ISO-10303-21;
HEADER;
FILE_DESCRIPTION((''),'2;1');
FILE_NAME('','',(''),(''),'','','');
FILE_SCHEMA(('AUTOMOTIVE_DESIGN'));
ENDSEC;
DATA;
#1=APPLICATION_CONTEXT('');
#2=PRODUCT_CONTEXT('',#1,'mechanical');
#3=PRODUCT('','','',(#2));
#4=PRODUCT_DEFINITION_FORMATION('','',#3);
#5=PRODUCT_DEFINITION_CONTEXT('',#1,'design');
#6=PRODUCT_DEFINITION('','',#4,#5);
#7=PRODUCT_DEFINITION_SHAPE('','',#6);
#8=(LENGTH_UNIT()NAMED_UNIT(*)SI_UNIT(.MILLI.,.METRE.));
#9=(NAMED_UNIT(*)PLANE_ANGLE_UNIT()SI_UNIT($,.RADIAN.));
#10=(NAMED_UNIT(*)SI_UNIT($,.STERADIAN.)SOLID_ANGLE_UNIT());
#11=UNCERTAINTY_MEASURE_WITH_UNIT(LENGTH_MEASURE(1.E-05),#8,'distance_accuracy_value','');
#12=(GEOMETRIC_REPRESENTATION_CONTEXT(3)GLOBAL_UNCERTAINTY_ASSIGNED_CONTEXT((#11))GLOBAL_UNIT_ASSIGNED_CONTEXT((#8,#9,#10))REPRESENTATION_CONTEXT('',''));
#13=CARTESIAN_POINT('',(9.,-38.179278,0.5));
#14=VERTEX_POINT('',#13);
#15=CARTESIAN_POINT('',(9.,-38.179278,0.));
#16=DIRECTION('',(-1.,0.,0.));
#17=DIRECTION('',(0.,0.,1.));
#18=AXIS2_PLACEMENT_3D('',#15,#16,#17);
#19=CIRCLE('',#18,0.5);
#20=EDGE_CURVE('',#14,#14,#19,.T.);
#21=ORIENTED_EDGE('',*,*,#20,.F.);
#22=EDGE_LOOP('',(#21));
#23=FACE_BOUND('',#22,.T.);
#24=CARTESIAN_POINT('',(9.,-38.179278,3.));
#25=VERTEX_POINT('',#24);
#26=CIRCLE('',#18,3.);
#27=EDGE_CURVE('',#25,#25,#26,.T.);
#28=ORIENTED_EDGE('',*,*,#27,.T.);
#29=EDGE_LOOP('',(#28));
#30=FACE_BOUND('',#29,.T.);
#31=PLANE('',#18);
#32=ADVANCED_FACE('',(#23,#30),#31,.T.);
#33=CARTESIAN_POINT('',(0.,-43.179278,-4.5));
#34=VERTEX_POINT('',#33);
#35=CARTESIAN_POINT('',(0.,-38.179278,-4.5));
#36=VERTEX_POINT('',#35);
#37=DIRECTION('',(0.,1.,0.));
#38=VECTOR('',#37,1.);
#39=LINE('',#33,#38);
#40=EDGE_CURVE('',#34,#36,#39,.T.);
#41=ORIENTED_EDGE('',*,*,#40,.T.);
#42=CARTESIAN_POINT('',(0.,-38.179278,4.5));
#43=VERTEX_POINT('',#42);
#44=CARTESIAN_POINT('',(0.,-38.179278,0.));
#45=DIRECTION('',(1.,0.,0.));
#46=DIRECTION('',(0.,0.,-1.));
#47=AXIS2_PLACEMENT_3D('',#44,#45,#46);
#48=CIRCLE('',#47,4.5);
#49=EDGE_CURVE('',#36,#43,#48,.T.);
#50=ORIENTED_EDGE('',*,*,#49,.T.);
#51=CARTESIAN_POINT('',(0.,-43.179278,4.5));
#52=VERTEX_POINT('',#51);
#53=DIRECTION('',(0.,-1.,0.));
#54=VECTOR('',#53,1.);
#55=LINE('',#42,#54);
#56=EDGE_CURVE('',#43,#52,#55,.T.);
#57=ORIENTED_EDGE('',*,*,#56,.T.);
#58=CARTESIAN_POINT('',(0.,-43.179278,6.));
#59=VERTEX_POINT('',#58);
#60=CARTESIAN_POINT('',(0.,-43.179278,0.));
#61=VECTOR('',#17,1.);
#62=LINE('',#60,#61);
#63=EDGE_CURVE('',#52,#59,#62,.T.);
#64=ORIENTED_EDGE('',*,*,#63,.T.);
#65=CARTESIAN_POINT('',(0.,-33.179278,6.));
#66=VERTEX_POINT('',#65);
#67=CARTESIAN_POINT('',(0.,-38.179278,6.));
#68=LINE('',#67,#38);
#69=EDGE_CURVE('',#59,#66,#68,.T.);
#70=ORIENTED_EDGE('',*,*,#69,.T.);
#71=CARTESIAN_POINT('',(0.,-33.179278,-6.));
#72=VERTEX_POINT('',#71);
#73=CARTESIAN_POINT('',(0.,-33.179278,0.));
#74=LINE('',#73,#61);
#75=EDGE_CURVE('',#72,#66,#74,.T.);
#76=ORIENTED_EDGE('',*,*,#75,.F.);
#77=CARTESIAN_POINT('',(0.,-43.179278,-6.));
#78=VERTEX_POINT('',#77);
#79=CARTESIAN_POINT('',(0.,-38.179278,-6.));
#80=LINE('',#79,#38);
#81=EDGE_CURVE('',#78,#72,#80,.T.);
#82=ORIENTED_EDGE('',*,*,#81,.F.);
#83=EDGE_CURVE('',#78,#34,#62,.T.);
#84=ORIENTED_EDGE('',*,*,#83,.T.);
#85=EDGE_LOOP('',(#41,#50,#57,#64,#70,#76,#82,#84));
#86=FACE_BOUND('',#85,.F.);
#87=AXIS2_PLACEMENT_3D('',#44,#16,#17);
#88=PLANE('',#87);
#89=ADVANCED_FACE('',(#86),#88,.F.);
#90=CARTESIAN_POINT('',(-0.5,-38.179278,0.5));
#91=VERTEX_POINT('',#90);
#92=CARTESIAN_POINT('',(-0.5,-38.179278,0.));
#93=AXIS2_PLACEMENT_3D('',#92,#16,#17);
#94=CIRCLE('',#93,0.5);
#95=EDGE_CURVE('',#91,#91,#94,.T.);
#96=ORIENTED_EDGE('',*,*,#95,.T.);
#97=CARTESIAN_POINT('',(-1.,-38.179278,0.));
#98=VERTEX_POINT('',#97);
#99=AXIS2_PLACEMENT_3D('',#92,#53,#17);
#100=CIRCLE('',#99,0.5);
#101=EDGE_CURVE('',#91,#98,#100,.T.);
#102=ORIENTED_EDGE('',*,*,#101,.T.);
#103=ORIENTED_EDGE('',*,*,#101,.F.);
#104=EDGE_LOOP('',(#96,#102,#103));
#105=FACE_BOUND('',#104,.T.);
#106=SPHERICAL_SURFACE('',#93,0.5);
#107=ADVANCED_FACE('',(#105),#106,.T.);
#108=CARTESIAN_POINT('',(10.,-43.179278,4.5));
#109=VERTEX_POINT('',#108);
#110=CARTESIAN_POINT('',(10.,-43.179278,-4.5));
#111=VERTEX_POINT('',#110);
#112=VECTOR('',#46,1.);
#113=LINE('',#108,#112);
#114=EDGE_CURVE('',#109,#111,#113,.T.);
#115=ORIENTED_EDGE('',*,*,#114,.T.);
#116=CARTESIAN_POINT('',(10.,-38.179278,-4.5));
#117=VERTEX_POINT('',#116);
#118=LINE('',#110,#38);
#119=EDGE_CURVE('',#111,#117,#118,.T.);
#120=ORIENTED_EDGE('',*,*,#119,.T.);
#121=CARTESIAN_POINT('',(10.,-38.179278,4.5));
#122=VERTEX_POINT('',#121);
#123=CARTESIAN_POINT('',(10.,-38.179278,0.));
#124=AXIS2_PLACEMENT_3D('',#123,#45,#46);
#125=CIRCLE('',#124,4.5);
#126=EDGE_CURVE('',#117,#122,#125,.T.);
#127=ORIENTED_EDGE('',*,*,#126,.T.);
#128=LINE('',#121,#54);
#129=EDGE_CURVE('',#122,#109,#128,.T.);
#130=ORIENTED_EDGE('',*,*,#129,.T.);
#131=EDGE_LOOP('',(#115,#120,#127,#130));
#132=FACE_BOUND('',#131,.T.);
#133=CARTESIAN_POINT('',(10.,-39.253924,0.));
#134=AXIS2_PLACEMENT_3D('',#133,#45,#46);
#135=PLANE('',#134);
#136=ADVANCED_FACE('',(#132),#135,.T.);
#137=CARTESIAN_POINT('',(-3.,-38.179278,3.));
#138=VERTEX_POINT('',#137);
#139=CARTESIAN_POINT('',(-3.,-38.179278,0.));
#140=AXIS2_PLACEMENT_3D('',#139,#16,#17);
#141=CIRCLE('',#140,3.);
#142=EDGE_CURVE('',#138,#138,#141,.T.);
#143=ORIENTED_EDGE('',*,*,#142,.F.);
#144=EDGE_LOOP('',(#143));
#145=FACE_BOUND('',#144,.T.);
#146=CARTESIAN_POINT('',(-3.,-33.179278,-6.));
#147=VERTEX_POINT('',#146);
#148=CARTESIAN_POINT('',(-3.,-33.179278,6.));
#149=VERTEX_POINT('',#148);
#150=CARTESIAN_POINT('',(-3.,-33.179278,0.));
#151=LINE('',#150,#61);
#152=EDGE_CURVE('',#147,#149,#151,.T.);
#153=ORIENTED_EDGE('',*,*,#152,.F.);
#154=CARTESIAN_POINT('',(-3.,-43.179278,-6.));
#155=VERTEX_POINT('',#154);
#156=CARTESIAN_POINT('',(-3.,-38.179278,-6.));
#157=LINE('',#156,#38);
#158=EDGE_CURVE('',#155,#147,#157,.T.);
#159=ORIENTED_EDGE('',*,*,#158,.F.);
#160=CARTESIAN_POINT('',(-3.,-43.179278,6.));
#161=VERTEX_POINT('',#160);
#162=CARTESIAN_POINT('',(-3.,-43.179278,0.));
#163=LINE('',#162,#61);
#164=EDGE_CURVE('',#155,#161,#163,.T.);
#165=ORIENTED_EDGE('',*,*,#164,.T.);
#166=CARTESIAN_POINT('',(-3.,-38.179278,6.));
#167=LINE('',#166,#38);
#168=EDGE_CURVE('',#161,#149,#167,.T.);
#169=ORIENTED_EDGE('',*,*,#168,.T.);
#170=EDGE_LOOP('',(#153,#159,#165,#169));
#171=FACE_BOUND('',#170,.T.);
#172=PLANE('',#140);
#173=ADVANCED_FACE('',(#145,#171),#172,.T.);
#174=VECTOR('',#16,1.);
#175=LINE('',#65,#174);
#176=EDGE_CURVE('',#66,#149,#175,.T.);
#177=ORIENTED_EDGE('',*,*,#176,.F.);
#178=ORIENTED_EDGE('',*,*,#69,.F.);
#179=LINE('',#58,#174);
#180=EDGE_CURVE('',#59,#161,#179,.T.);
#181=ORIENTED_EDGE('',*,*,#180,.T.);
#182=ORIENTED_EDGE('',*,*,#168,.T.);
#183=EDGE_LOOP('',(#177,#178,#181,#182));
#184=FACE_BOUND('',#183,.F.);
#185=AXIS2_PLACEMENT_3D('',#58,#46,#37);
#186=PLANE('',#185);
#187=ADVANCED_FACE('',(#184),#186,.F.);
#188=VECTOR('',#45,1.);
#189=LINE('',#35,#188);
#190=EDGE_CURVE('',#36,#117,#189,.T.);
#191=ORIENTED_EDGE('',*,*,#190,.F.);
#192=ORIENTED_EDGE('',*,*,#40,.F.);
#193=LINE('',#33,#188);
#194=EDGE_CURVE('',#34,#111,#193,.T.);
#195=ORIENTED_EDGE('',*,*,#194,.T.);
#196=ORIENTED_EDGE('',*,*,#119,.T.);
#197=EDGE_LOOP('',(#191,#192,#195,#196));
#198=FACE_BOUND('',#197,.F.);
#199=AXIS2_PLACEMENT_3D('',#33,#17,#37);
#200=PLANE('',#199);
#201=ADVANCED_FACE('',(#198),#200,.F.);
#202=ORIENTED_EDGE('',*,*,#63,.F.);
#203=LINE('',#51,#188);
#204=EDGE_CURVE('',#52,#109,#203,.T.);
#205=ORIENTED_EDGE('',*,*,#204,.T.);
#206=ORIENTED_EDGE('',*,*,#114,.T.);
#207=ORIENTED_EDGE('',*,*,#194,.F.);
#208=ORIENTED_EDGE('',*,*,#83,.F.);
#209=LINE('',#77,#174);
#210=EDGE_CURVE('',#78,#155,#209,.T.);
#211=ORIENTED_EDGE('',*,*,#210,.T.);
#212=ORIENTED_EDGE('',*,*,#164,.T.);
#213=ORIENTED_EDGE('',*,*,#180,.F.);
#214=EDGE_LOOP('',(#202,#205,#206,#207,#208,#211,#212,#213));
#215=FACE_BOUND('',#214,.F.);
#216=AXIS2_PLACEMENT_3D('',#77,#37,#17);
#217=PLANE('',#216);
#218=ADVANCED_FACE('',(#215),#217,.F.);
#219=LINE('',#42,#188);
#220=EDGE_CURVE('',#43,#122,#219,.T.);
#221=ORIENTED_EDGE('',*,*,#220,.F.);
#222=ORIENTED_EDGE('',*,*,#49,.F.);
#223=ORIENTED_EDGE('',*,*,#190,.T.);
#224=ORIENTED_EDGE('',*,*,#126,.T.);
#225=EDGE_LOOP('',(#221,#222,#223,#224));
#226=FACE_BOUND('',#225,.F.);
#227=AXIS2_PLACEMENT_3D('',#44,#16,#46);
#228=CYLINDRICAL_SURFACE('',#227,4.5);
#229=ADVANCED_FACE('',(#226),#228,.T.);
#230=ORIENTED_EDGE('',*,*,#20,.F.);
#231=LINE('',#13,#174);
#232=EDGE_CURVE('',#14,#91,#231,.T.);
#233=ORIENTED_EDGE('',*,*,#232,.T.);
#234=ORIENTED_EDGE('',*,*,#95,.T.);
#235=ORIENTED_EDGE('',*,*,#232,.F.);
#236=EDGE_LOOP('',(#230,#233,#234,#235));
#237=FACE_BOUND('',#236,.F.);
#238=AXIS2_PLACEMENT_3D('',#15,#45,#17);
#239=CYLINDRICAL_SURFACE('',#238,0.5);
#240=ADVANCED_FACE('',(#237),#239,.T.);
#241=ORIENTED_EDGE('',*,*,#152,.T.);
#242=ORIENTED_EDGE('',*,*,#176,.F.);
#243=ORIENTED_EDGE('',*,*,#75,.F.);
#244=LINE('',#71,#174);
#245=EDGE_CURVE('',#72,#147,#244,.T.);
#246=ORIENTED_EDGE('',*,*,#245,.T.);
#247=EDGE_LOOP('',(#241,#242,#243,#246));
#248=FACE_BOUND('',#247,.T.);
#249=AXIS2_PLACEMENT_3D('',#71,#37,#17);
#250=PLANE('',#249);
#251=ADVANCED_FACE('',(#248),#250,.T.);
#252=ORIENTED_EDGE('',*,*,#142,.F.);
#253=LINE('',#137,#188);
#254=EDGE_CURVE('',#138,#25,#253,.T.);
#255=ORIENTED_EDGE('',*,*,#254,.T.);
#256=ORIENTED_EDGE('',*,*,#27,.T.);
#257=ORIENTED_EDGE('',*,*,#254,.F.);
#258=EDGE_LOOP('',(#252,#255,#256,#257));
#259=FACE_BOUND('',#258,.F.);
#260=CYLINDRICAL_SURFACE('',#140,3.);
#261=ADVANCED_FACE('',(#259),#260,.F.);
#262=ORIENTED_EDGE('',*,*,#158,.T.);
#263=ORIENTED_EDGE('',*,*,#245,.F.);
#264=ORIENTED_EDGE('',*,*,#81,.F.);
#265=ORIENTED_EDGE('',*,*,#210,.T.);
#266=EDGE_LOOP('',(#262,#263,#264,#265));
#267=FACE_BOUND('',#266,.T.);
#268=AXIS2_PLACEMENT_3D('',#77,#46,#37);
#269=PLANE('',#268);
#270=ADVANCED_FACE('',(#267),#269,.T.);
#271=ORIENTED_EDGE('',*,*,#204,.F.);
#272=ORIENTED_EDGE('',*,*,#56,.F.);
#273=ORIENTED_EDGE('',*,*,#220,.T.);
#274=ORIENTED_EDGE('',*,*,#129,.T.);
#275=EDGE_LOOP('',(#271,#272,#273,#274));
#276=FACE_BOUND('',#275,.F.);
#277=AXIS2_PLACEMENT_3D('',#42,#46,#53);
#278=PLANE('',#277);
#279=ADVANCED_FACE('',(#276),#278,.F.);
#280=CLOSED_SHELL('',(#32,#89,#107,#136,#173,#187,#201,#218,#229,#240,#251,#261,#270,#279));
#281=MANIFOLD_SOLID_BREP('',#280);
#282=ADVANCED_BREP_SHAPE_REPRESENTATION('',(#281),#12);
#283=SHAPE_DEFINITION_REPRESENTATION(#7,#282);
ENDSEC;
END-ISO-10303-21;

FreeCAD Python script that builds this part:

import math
import FreeCAD as App
import Part
import Sketcher

V = App.Vector


def edges_at(feature, points):
    """Names of the edges that pass closest to the given points."""
    edges = feature.Shape.Edges
    near = lambda p: min(range(len(edges)), key=lambda i: edges[i].distToShape(Part.Vertex(*p))[0])
    return sorted({f"Edge{near(p) + 1}" for p in points})

doc = App.newDocument("Part")
body = doc.addObject("PartDesign::Body", "Body")

# Sketch on YZ plane
sketch1 = body.newObject("Sketcher::SketchObject", "Sketch")
sketch1.AttachmentSupport = (doc.getObject("YZ_Plane"), [""])
sketch1.MapMode = "FlatFace"
sketch1.addGeometry(Part.LineSegment(V(-43.2, 4.5, 0), V(-43.2, -4.5, 0)), False)
sketch1.addGeometry(Part.LineSegment(V(-43.2, -4.5, 0), V(-38.2, -4.5, 0)), False)
sketch1.addGeometry(Part.ArcOfCircle(Part.Circle(V(-38.2, 0, 0), V(0, 0, 1), 4.5), math.radians(-90), math.radians(90)), False)
sketch1.addGeometry(Part.LineSegment(V(-38.2, 4.5, 0), V(-43.2, 4.5, 0)), False)
sketch1.addConstraint(Sketcher.Constraint("Coincident", 0, 2, 1, 1))
sketch1.addConstraint(Sketcher.Constraint("Tangent", 1, 2, 2, 1))
sketch1.addConstraint(Sketcher.Constraint("Tangent", 2, 2, 3, 1))
sketch1.addConstraint(Sketcher.Constraint("Coincident", 3, 2, 0, 1))
sketch1.addConstraint(Sketcher.Constraint("Vertical", 0))
sketch1.addConstraint(Sketcher.Constraint("Horizontal", 1))
sketch1.addConstraint(Sketcher.Constraint("Horizontal", 3))
sketch1.addConstraint(Sketcher.Constraint("PointOnObject", 2, 3, -1))
sketch1.addConstraint(Sketcher.Constraint("Radius", 2, 4.5))
sketch1.addConstraint(Sketcher.Constraint("DistanceX", 1, 1, 1, 2, 5.0))
sketch1.addConstraint(Sketcher.Constraint("DistanceX", 2, 3, -1, 1, 38.179278))
pad1 = body.newObject("PartDesign::Pad", "Pad")
pad1.Profile = sketch1
pad1.Length = 10

# Sketch on YZ plane
sketch2 = body.newObject("Sketcher::SketchObject", "Sketch001")
sketch2.AttachmentSupport = (doc.getObject("YZ_Plane"), [""])
sketch2.MapMode = "FlatFace"
sketch2.addGeometry(Part.LineSegment(V(-33, -6, 0), V(-43, -6, 0)), False)
sketch2.addGeometry(Part.LineSegment(V(-43, -6, 0), V(-43, 6, 0)), False)
sketch2.addGeometry(Part.LineSegment(V(-43, 6, 0), V(-33, 6, 0)), False)
sketch2.addGeometry(Part.LineSegment(V(-33, 6, 0), V(-33, -6, 0)), False)
sketch2.addConstraint(Sketcher.Constraint("Coincident", 0, 2, 1, 1))
sketch2.addConstraint(Sketcher.Constraint("Coincident", 1, 2, 2, 1))
sketch2.addConstraint(Sketcher.Constraint("Coincident", 2, 2, 3, 1))
sketch2.addConstraint(Sketcher.Constraint("Coincident", 3, 2, 0, 1))
sketch2.addConstraint(Sketcher.Constraint("Horizontal", 0))
sketch2.addConstraint(Sketcher.Constraint("Vertical", 1))
sketch2.addConstraint(Sketcher.Constraint("Horizontal", 2))
sketch2.addConstraint(Sketcher.Constraint("Vertical", 3))
sketch2.addConstraint(Sketcher.Constraint("DistanceX", 0, 2, 0, 1, 10.0))
sketch2.addConstraint(Sketcher.Constraint("DistanceY", 1, 1, 1, 2, 12.0))
sketch2.addConstraint(Sketcher.Constraint("DistanceY", 0, 2, -1, 1, 6.0))
sketch2.addConstraint(Sketcher.Constraint("DistanceX", 0, 2, -1, 1, 43.179278))
pad2 = body.newObject("PartDesign::Pad", "Pad001")
pad2.Profile = sketch2
pad2.Length = 3
pad2.Reversed = True

# Sketch on YZ plane
sketch3 = body.newObject("Sketcher::SketchObject", "Sketch002")
sketch3.AttachmentSupport = (doc.getObject("YZ_Plane"), [""])
sketch3.MapMode = "FlatFace"
sketch3.AttachmentOffset = App.Placement(V(0, 0, -3), App.Rotation())
sketch3.addGeometry(Part.Circle(V(-38.2, 0, 0), V(0, 0, 1), 3), False)
sketch3.addConstraint(Sketcher.Constraint("PointOnObject", 0, 3, -1))
sketch3.addConstraint(Sketcher.Constraint("Diameter", 0, 6.0))
sketch3.addConstraint(Sketcher.Constraint("DistanceX", 0, 3, -1, 1, 38.179278))
pocket1 = body.newObject("PartDesign::Pocket", "Pocket")
pocket1.Profile = sketch3
pocket1.Length = 12
pocket1.Reversed = True

# Sketch on YZ plane
sketch4 = body.newObject("Sketcher::SketchObject", "Sketch003")
sketch4.AttachmentSupport = (doc.getObject("YZ_Plane"), [""])
sketch4.MapMode = "FlatFace"
sketch4.AttachmentOffset = App.Placement(V(0, 0, 9), App.Rotation())
sketch4.addGeometry(Part.Circle(V(-38.2, 0, 0), V(0, 0, 1), 0.5), False)
sketch4.addConstraint(Sketcher.Constraint("PointOnObject", 0, 3, -1))
sketch4.addConstraint(Sketcher.Constraint("Diameter", 0, 1.0))
sketch4.addConstraint(Sketcher.Constraint("DistanceX", 0, 3, -1, 1, 38.179278))
pad3 = body.newObject("PartDesign::Pad", "Pad002")
pad3.Profile = sketch4
pad3.Length = 10
pad3.Reversed = True
doc.recompute()

fillet = body.newObject("PartDesign::Fillet", "Fillet")
fillet.Base = (pad3, edges_at(pad3, [(-1, -38.179, -0.5)]))
fillet.Radius = 0.5

doc.recompute()
